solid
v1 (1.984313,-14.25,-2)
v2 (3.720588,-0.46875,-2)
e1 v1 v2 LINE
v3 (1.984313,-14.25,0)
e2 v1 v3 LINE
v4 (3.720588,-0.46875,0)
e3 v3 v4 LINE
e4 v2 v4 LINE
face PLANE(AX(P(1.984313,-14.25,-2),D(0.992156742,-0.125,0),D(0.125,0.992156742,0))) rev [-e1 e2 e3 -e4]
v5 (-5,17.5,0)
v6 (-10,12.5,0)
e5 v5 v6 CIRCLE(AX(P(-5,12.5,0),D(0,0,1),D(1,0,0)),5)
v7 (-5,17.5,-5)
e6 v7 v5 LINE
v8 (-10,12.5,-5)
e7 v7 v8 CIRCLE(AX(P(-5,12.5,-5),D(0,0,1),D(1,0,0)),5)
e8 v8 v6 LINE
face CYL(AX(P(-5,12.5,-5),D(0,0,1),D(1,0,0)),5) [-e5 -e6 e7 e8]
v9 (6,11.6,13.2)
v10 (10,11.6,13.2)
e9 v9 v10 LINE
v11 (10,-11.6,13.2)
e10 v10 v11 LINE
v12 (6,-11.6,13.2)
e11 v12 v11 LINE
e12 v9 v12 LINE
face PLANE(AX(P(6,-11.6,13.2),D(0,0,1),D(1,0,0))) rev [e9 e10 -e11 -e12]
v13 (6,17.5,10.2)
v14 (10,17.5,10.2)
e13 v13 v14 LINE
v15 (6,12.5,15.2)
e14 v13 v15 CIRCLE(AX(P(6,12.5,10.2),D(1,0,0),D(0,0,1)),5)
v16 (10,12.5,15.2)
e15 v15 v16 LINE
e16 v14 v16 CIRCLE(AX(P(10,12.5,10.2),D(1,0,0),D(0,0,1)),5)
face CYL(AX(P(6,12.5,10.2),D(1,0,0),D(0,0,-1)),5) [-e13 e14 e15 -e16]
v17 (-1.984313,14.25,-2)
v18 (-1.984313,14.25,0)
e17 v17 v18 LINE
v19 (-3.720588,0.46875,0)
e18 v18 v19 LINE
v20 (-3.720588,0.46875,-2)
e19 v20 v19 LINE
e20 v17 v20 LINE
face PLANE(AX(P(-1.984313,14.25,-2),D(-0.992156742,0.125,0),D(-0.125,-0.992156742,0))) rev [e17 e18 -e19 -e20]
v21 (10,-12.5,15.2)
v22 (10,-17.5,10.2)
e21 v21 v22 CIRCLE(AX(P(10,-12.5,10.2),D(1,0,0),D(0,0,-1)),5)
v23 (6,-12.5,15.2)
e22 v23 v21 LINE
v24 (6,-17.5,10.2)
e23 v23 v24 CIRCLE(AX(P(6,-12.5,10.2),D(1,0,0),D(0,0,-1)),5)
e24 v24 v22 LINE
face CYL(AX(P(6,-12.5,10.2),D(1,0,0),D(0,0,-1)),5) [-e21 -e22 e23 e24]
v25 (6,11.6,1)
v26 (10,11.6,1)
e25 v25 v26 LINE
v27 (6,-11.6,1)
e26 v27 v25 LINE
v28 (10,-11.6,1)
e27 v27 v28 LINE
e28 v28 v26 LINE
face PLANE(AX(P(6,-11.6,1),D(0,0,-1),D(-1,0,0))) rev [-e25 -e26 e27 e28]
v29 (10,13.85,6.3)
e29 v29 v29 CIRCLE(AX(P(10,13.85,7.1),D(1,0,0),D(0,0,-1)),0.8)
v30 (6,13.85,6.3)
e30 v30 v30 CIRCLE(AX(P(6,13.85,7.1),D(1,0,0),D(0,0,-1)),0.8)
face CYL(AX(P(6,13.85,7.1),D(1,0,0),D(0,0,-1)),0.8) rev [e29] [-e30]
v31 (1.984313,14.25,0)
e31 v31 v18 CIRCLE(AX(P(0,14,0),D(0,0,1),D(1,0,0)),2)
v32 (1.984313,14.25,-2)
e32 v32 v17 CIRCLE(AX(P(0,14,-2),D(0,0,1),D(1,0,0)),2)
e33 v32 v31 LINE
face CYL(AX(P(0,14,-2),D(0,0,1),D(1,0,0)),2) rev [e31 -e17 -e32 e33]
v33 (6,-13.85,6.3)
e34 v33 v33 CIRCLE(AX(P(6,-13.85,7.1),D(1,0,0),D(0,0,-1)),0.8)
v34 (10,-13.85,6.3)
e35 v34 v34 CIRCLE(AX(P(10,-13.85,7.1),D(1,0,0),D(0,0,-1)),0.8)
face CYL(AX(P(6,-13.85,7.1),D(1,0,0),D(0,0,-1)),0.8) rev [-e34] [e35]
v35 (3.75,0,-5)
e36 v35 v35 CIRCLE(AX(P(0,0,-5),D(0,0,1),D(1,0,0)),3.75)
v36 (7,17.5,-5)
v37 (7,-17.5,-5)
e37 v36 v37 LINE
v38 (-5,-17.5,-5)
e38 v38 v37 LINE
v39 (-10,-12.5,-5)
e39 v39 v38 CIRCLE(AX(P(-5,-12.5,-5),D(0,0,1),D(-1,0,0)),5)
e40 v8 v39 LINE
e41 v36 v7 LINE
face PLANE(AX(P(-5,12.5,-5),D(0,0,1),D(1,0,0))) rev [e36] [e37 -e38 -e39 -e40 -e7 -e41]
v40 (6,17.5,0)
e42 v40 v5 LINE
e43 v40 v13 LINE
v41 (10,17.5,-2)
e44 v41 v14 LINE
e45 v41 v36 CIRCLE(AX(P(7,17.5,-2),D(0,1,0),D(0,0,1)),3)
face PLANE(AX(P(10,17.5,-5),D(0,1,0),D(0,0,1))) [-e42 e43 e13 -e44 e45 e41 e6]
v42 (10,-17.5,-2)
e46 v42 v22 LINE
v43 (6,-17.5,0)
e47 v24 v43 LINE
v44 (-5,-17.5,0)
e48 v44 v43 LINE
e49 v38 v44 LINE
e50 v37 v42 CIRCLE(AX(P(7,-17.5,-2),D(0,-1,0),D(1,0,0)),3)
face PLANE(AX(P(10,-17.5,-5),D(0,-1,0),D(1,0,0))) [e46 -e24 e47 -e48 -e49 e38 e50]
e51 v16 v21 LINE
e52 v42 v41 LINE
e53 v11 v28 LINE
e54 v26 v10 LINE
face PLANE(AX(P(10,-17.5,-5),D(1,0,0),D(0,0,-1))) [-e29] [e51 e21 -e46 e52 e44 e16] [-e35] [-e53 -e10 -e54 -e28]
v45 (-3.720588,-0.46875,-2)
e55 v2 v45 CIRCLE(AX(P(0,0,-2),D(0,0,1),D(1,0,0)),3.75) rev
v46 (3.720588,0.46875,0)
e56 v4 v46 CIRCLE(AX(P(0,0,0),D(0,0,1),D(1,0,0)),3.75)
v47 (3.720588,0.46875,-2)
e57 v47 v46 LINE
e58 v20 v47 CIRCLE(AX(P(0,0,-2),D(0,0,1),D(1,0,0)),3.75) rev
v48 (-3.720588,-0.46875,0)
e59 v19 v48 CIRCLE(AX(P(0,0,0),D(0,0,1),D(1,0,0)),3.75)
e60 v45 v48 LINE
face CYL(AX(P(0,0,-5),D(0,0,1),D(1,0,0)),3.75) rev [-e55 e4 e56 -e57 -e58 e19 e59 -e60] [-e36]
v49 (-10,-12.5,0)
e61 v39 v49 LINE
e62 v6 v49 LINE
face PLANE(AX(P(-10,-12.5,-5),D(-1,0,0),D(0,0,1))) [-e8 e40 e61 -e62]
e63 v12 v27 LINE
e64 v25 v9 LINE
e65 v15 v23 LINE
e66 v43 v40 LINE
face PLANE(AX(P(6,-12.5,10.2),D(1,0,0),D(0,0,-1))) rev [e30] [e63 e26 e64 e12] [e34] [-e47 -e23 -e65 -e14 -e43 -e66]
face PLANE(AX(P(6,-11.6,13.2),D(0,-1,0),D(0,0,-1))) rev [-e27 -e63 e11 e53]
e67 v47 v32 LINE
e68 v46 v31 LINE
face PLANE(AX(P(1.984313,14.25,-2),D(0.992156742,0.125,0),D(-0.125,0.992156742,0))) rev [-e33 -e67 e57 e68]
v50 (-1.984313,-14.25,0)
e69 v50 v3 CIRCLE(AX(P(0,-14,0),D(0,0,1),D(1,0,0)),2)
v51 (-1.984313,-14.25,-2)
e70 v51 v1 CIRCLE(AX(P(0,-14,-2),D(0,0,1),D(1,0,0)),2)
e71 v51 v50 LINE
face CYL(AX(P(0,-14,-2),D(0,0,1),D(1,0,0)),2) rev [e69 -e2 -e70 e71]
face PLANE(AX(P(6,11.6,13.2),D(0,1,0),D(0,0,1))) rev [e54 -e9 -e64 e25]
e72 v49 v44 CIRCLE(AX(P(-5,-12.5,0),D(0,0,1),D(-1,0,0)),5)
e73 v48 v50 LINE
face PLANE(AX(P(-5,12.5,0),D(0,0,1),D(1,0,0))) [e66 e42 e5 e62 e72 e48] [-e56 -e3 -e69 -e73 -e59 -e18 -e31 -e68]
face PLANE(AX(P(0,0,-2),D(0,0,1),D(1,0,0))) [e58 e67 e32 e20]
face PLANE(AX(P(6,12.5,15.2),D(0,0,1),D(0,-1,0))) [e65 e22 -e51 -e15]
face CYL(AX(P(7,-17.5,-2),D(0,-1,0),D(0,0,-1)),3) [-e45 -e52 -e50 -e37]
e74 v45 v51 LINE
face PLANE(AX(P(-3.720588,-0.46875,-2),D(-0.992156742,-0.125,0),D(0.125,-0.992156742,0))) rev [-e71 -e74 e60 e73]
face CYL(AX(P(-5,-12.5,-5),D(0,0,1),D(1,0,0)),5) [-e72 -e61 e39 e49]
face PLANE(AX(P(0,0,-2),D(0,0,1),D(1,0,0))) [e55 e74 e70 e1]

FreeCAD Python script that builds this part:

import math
import FreeCAD as App
import Part
import Sketcher
from FreeCAD import Vector
Q = App.Units.Quantity


def edges_at(feature, points):
    """Names of the edges that pass closest to the given points."""
    edges = feature.Shape.Edges
    near = lambda p: min(range(len(edges)), key=lambda i: edges[i].distToShape(Part.Vertex(*p))[0])
    return sorted({f"Edge{near(p) + 1}" for p in points})

doc = App.newDocument("Part")
body = doc.addObject("PartDesign::Body", "Body")

sketch1 = body.newObject("Sketcher::SketchObject", "Sketch")
sketch1.AttachmentSupport = (doc.getObject("XY_Plane"), [""])
sketch1.MapMode = "FlatFace"
sketch1.addGeometry([
    Part.LineSegment(Vector(-5, -17.5, 0), Vector(10, -17.5, 0)),
    Part.LineSegment(Vector(10, -17.5, 0), Vector(10, 17.5, 0)),
    Part.LineSegment(Vector(10, 17.5, 0), Vector(-5, 17.5, 0)),
    Part.ArcOfCircle(Part.Circle(Vector(-5, 12.5, 0), Vector(0, 0, 1), 5), math.radians(90), math.radians(180)),
    Part.LineSegment(Vector(-10, 12.5, 0), Vector(-10, -12.5, 0)),
    Part.ArcOfCircle(Part.Circle(Vector(-5, -12.5, 0), Vector(0, 0, 1), 5), math.radians(180), math.radians(270)),
    Part.Circle(Vector(0, 0, 0), Vector(0, 0, 1), 3.8),
], False)
sketch1.addConstraint([
    Sketcher.Constraint("Coincident", 0, 2, 1, 1),
    Sketcher.Constraint("Coincident", 1, 2, 2, 1),
    Sketcher.Constraint("Tangent", 2, 2, 3, 1),
    Sketcher.Constraint("Tangent", 3, 2, 4, 1),
    Sketcher.Constraint("Tangent", 4, 2, 5, 1),
    Sketcher.Constraint("Tangent", 5, 2, 0, 1),
    Sketcher.Constraint("Horizontal", 0),
    Sketcher.Constraint("Vertical", 1),
    Sketcher.Constraint("Horizontal", 2),
    Sketcher.Constraint("Vertical", 4),
    Sketcher.Constraint("Coincident", 6, 3, -1, 1),
    Sketcher.Constraint("Equal", 3, 5),
    Sketcher.Constraint("Radius", 3, Q("5 mm")),
    Sketcher.Constraint("Diameter", 6, Q("7.5 mm")),
    Sketcher.Constraint("DistanceX", 0, 1, 0, 2, Q("15 mm")),
    Sketcher.Constraint("DistanceY", 1, 1, 1, 2, Q("35 mm")),
    Sketcher.Constraint("DistanceX", 3, 3, -1, 1, Q("5 mm")),
    Sketcher.Constraint("DistanceY", -1, 1, 3, 3, Q("12.5 mm")),
])
pad1 = body.newObject("PartDesign::Pad", "Pad")
pad1.Profile = sketch1
pad1.Length = 5
pad1.Reversed = True

sketch2 = body.newObject("Sketcher::SketchObject", "Sketch001")
sketch2.AttachmentSupport = (doc.getObject("XY_Plane"), [""])
sketch2.MapMode = "FlatFace"
sketch2.addGeometry([
    Part.LineSegment(Vector(-2, 14.2, 0), Vector(-3.7, 0.5, 0)),
    Part.ArcOfCircle(Part.Circle(Vector(0, 0, 0), Vector(0, 0, 1), 3.7), math.radians(172.82), math.radians(187.18)),
    Part.LineSegment(Vector(-3.7, -0.5, 0), Vector(-2, -14.2, 0)),
    Part.ArcOfCircle(Part.Circle(Vector(0, -14, 0), Vector(0, 0, 1), 2), math.radians(-173), math.radians(-7)),
    Part.LineSegment(Vector(2, -14.2, 0), Vector(3.7, -0.5, 0)),
    Part.ArcOfCircle(Part.Circle(Vector(0, 0, 0), Vector(0, 0, 1), 3.7), math.radians(-7.18), math.radians(7.18)),
    Part.LineSegment(Vector(3.7, 0.5, 0), Vector(2, 14.2, 0)),
    Part.ArcOfCircle(Part.Circle(Vector(0, 14, 0), Vector(0, 0, 1), 2), math.radians(7), math.radians(173)),
], False)
sketch2.addConstraint([
    Sketcher.Constraint("Tangent", 0, 2, 1, 1),
    Sketcher.Constraint("Tangent", 1, 2, 2, 1),
    Sketcher.Constraint("Tangent", 2, 2, 3, 1),
    Sketcher.Constraint("Tangent", 3, 2, 4, 1),
    Sketcher.Constraint("Tangent", 4, 2, 5, 1),
    Sketcher.Constraint("Tangent", 5, 2, 6, 1),
    Sketcher.Constraint("Tangent", 6, 2, 7, 1),
    Sketcher.Constraint("Tangent", 7, 2, 0, 1),
    Sketcher.Constraint("Coincident", 1, 3, -1, 1),
    Sketcher.Constraint("Coincident", 5, 3, -1, 1),
    Sketcher.Constraint("Equal", 1, 5),
    Sketcher.Constraint("Equal", 3, 7),
    Sketcher.Constraint("Symmetric", 3, 3, 7, 3, -1, 1),
    Sketcher.Constraint("PointOnObject", 3, 3, -2),
    Sketcher.Constraint("Radius", 3, Q("2 mm")),
    Sketcher.Constraint("Radius", 1, Q("3.75 mm")),
    Sketcher.Constraint("DistanceY", 3, 3, -1, 1, Q("14 mm")),
])
pocket1 = body.newObject("PartDesign::Pocket", "Pocket")
pocket1.Profile = sketch2
pocket1.Length = 2

sketch3 = body.newObject("Sketcher::SketchObject", "Sketch002")
sketch3.AttachmentSupport = (doc.getObject("YZ_Plane"), [""])
sketch3.MapMode = "FlatFace"
sketch3.AttachmentOffset = App.Placement(Vector(0, 0, 10), App.Rotation())
sketch3.addGeometry([
    Part.LineSegment(Vector(17.5, -5, 0), Vector(17.5, 10.2, 0)),
    Part.ArcOfCircle(Part.Circle(Vector(12.5, 10.2, 0), Vector(0, 0, 1), 5), math.radians(0), math.radians(90)),
    Part.LineSegment(Vector(12.5, 15.2, 0), Vector(-12.5, 15.2, 0)),
    Part.ArcOfCircle(Part.Circle(Vector(-12.5, 10.2, 0), Vector(0, 0, 1), 5), math.radians(90), math.radians(180)),
    Part.LineSegment(Vector(-17.5, 10.2, 0), Vector(-17.5, -5, 0)),
    Part.LineSegment(Vector(-17.5, -5, 0), Vector(17.5, -5, 0)),
    Part.Circle(Vector(-13.8, 7.1, 0), Vector(0, 0, 1), 0.8),
    Part.LineSegment(Vector(-11.6, 1, 0), Vector(-11.6, 13.2, 0)),
    Part.LineSegment(Vector(-11.6, 13.2, 0), Vector(11.6, 13.2, 0)),
    Part.LineSegment(Vector(11.6, 13.2, 0), Vector(11.6, 1, 0)),
    Part.LineSegment(Vector(11.6, 1, 0), Vector(-11.6, 1, 0)),
    Part.Circle(Vector(13.8, 7.1, 0), Vector(0, 0, 1), 0.8),
], False)
sketch3.addConstraint([
    Sketcher.Constraint("Tangent", 0, 2, 1, 1),
    Sketcher.Constraint("Tangent", 1, 2, 2, 1),
    Sketcher.Constraint("Tangent", 2, 2, 3, 1),
    Sketcher.Constraint("Tangent", 3, 2, 4, 1),
    Sketcher.Constraint("Coincident", 4, 2, 5, 1),
    Sketcher.Constraint("Coincident", 5, 2, 0, 1),
    Sketcher.Constraint("Coincident", 7, 2, 8, 1),
    Sketcher.Constraint("Coincident", 8, 2, 9, 1),
    Sketcher.Constraint("Coincident", 9, 2, 10, 1),
    Sketcher.Constraint("Coincident", 10, 2, 7, 1),
    Sketcher.Constraint("Vertical", 0),
    Sketcher.Constraint("Horizontal", 2),
    Sketcher.Constraint("Vertical", 4),
    Sketcher.Constraint("Horizontal", 5),
    Sketcher.Constraint("Vertical", 7),
    Sketcher.Constraint("Horizontal", 8),
    Sketcher.Constraint("Vertical", 9),
    Sketcher.Constraint("Horizontal", 10),
    Sketcher.Constraint("Equal", 1, 3),
    Sketcher.Constraint("Equal", 6, 11),
    Sketcher.Constraint("Symmetric", 6, 3, 11, 3, -2),
    Sketcher.Constraint("Radius", 1, Q("5 mm")),
    Sketcher.Constraint("Diameter", 6, Q("1.6 mm")),
    Sketcher.Constraint("DistanceX", 2, 2, 2, 1, Q("25 mm")),
    Sketcher.Constraint("DistanceX", 8, 1, 8, 2, Q("23.2 mm")),
    Sketcher.Constraint("DistanceY", 0, 1, 0, 2, Q("15.2 mm")),
    Sketcher.Constraint("DistanceY", 7, 1, 7, 2, Q("12.2 mm")),
    Sketcher.Constraint("DistanceY", 4, 2, -1, 1, Q("5 mm")),
    Sketcher.Constraint("DistanceY", -1, 1, 9, 2, Q("1 mm")),
    Sketcher.Constraint("DistanceX", -1, 1, 1, 3, Q("12.5 mm")),
    Sketcher.Constraint("DistanceY", -1, 1, 6, 3, Q("7.1 mm")),
    Sketcher.Constraint("DistanceX", 7, 2, -1, 1, Q("11.6 mm")),
    Sketcher.Constraint("DistanceX", 6, 3, 11, 3, Q("27.7 mm")),
])
pad2 = body.newObject("PartDesign::Pad", "Pad001")
pad2.Profile = sketch3
pad2.Length = 4
pad2.Reversed = True
doc.recompute()

fillet = body.newObject("PartDesign::Fillet", "Fillet")
fillet.Base = (pad2, edges_at(pad2, [(10, 0, -5)]))
fillet.Radius = 3

doc.recompute()
